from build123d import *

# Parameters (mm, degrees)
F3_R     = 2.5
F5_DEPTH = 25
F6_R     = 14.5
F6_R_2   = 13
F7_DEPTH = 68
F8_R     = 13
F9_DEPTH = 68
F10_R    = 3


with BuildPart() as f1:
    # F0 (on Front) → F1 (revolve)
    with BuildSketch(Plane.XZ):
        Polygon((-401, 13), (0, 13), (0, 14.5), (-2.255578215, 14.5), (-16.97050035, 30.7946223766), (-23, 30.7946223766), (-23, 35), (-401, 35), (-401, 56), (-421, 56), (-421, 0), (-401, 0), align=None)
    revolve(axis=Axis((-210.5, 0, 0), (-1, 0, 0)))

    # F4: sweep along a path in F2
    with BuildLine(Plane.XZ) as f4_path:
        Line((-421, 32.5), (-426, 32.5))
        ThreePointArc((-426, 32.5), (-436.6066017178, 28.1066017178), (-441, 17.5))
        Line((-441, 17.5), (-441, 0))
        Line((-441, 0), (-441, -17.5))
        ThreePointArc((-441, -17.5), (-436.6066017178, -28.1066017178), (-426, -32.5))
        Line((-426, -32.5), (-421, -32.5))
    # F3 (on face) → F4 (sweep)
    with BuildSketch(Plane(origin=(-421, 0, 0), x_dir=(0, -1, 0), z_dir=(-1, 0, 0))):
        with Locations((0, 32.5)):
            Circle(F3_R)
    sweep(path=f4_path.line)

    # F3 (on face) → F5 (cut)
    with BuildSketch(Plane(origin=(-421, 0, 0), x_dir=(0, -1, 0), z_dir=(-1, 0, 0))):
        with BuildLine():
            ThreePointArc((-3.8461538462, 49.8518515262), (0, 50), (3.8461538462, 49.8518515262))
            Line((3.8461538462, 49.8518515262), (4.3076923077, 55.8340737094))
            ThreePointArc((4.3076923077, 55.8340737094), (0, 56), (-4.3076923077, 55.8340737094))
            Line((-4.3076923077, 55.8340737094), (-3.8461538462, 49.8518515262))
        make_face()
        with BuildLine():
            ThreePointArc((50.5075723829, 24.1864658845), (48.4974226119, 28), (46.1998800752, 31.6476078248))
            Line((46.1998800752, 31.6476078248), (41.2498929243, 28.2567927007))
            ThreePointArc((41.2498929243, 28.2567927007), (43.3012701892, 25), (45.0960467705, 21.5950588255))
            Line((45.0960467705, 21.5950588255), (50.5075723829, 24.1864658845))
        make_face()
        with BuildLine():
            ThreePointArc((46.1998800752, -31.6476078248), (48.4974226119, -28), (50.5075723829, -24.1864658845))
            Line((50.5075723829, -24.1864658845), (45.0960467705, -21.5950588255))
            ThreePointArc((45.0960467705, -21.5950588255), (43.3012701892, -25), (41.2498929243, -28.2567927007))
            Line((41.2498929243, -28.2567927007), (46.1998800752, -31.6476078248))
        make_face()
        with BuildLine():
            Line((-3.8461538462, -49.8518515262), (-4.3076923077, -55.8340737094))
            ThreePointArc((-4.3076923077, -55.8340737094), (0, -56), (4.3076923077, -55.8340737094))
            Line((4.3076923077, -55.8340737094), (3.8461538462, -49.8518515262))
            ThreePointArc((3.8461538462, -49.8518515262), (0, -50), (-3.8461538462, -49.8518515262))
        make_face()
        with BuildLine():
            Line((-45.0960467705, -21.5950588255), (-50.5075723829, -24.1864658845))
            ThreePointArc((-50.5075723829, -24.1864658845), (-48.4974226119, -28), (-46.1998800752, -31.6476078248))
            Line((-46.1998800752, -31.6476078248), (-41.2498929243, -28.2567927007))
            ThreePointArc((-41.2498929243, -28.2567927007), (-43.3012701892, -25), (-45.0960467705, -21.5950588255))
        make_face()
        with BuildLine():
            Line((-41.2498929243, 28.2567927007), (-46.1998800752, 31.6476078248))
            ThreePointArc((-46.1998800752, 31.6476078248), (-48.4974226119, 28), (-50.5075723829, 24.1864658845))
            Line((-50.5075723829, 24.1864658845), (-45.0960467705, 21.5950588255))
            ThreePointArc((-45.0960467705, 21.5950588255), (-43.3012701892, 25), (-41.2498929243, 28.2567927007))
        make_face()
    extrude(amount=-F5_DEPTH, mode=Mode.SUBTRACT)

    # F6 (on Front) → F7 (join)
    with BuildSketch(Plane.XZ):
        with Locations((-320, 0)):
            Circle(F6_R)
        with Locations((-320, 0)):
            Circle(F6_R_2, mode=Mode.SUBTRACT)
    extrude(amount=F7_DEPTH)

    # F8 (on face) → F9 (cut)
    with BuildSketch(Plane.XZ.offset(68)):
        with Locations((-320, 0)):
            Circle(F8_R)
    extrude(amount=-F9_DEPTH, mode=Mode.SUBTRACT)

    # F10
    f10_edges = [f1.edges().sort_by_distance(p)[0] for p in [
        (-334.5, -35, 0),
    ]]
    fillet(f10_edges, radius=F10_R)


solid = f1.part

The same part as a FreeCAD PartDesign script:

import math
import FreeCAD as App
import Part
import Sketcher
from FreeCAD import Vector
Q = App.Units.Quantity


def edges_at(feature, points):
    """Names of the edges that pass closest to the given points."""
    edges = feature.Shape.Edges
    near = lambda p: min(range(len(edges)), key=lambda i: edges[i].distToShape(Part.Vertex(*p))[0])
    return sorted({f"Edge{near(p) + 1}" for p in points})


def add_polygon(sketch, points):
    """Adds a closed chain of lines whose ends are joined by coincident constraints."""
    first, n = sketch.GeometryCount, len(points)
    for a, b in zip(points, points[1:] + points[:1]):
        sketch.addGeometry(Part.LineSegment(App.Vector(*a, 0), App.Vector(*b, 0)), False)
    for i in range(n):
        sketch.addConstraint(Sketcher.Constraint("Coincident", first + i, 2, first + (i + 1) % n, 1))

doc = App.newDocument("Part")
body = doc.addObject("PartDesign::Body", "Body")

# Sketch on XZ plane
sketch1 = doc.addObject("Sketcher::SketchObject", "Sketch")
body.addObject(sketch1)
sketch1.AttachmentSupport = (doc.XZ_Plane, [""])
sketch1.MapMode = "FlatFace"
add_polygon(sketch1, [(-401, 13), (0, 13), (0, 14.5), (-2.255578, 14.5), (-16.9705, 30.794622), (-23, 30.794622), (-23, 35), (-401, 35), (-401, 56), (-421, 56), (-421, 0), (-401, 0)])  # lines 0-11
sketch1.addConstraint([
    Sketcher.Constraint("Horizontal", 0),
    Sketcher.Constraint("Vertical", 1),
    Sketcher.Constraint("Horizontal", 2),
    Sketcher.Constraint("Horizontal", 4),
    Sketcher.Constraint("Vertical", 5),
    Sketcher.Constraint("Horizontal", 6),
    Sketcher.Constraint("Vertical", 7),
    Sketcher.Constraint("Horizontal", 8),
    Sketcher.Constraint("Vertical", 9),
    Sketcher.Constraint("Horizontal", 10),
    Sketcher.Constraint("Vertical", 11),
    Sketcher.Constraint("PointOnObject", 0, 2, -2),
    Sketcher.Constraint("PointOnObject", 9, 2, -1),
    Sketcher.Constraint("Vertical", 7, 2, 10, 2),
    Sketcher.Constraint("DistanceX", 0, 1, 0, 2, Q("401 mm")),
    Sketcher.Constraint("DistanceX", 6, 2, 6, 1, Q("378 mm")),
    Sketcher.Constraint("DistanceX", 8, 2, 8, 1, Q("20 mm")),
    Sketcher.Constraint("DistanceY", 7, 1, 7, 2, Q("21 mm")),
    Sketcher.Constraint("DistanceY", 9, 2, 9, 1, Q("56 mm")),
    Sketcher.Constraint("DistanceY", 11, 1, 11, 2, Q("13 mm")),
    Sketcher.Constraint("DistanceY", 1, 1, 1, 2, Q("1.5 mm")),
    Sketcher.Constraint("DistanceX", 4, 2, 4, 1, Q("6.0295 mm")),
    Sketcher.Constraint("DistanceX", 2, 2, 2, 1, Q("2.255578 mm")),
    Sketcher.Constraint("DistanceY", 5, 1, 5, 2, Q("4.205378 mm")),
])
revolution = doc.addObject("PartDesign::Revolution", "Revolution")
body.addObject(revolution)
revolution.Profile = sketch1
revolution.ReferenceAxis = (sketch1, ["H_Axis"])
revolution.Angle = 360

# Sketch on YZ plane
sketch2 = doc.addObject("Sketcher::SketchObject", "Sketch001")
body.addObject(sketch2)
sketch2.AttachmentSupport = (doc.YZ_Plane, [""])
sketch2.MapMode = "FlatFace"
sketch2.AttachmentOffset = App.Placement(Vector(0, 0, -421), App.Rotation())
sketch2.addGeometry(Part.Circle(Vector(0, 32.5, 0), Vector(0, 0, 1), 2.5), False)
sketch2.addConstraint([
    Sketcher.Constraint("PointOnObject", 0, 3, -2),
    Sketcher.Constraint("Diameter", 0, Q("5 mm")),
    Sketcher.Constraint("DistanceY", -1, 1, 0, 3, Q("32.5 mm")),
])

# Sketch on XZ plane
sketch3 = doc.addObject("Sketcher::SketchObject", "Sketch002")
body.addObject(sketch3)
sketch3.AttachmentSupport = (doc.XZ_Plane, [""])
sketch3.MapMode = "FlatFace"
sketch3.addGeometry([
    Part.LineSegment(Vector(-421, 32.5, 0), Vector(-426, 32.5, 0)),  # 0
    Part.ArcOfCircle(Part.Circle(Vector(-426, 17.5, 0), Vector(0, 0, 1), 15), math.radians(90), math.radians(180)),  # 1
    Part.LineSegment(Vector(-441, 17.5, 0), Vector(-441, -17.5, 0)),  # 2
    Part.ArcOfCircle(Part.Circle(Vector(-426, -17.5, 0), Vector(0, 0, 1), 15), math.radians(180), math.radians(270)),  # 3
    Part.LineSegment(Vector(-426, -32.5, 0), Vector(-421, -32.5, 0)),  # 4
], False)
sketch3.addConstraint([
    Sketcher.Constraint("Tangent", 0, 2, 1, 1),
    Sketcher.Constraint("Tangent", 1, 2, 2, 1),
    Sketcher.Constraint("Tangent", 2, 2, 3, 1),
    Sketcher.Constraint("Tangent", 3, 2, 4, 1),
    Sketcher.Constraint("Horizontal", 0),
    Sketcher.Constraint("Vertical", 2),
    Sketcher.Constraint("Horizontal", 4),
    Sketcher.Constraint("Equal", 1, 3),
    Sketcher.Constraint("Symmetric", 0, 1, 4, 2, -1),
    Sketcher.Constraint("Radius", 1, Q("15 mm")),
    Sketcher.Constraint("DistanceX", 0, 2, 0, 1, Q("5 mm")),
    Sketcher.Constraint("DistanceY", 2, 2, 2, 1, Q("35 mm")),
    Sketcher.Constraint("DistanceX", 1, 3, -1, 1, Q("426 mm")),
])
doc.recompute()

additivepipe = doc.addObject("PartDesign::AdditivePipe", "AdditivePipe")
body.addObject(additivepipe)
additivepipe.Profile = sketch2
additivepipe.Spine = (sketch3, ["Edge1", "Edge2", "Edge3", "Edge4", "Edge5"])

# Sketch on YZ plane
sketch4 = doc.addObject("Sketcher::SketchObject", "Sketch003")
body.addObject(sketch4)
sketch4.AttachmentSupport = (doc.YZ_Plane, [""])
sketch4.MapMode = "FlatFace"
sketch4.AttachmentOffset = App.Placement(Vector(0, 0, -421), App.Rotation())
sketch4.addGeometry([
    Part.ArcOfCircle(Part.Circle(Vector(0, 0, 0), Vector(0, 0, 1), 50), math.radians(85.588274), math.radians(94.411726)),  # 0
    Part.LineSegment(Vector(-3.846154, 49.851852, 0), Vector(-4.307692, 55.834074, 0)),  # 1
    Part.ArcOfCircle(Part.Circle(Vector(0, 0, 0), Vector(0, 0, 1), 56), math.radians(85.588274), math.radians(94.411726)),  # 2
    Part.LineSegment(Vector(4.307692, 55.834074, 0), Vector(3.846154, 49.851852, 0)),  # 3
    Part.ArcOfCircle(Part.Circle(Vector(0, 0, 0), Vector(0, 0, 1), 56), math.radians(145.588274), math.radians(154.411726)),  # 4
    Part.LineSegment(Vector(-46.19988, 31.647608, 0), Vector(-41.249893, 28.256793, 0)),  # 5
    Part.ArcOfCircle(Part.Circle(Vector(0, 0, 0), Vector(0, 0, 1), 50), math.radians(145.588274), math.radians(154.411726)),  # 6
    Part.LineSegment(Vector(-45.096047, 21.595059, 0), Vector(-50.507572, 24.186466, 0)),  # 7
    Part.ArcOfCircle(Part.Circle(Vector(0, 0, 0), Vector(0, 0, 1), 56), math.radians(-154.411726), math.radians(-145.588274)),  # 8
    Part.LineSegment(Vector(-50.507572, -24.186466, 0), Vector(-45.096047, -21.595059, 0)),  # 9
    Part.ArcOfCircle(Part.Circle(Vector(0, 0, 0), Vector(0, 0, 1), 50), math.radians(-154.411726), math.radians(-145.588274)),  # 10
    Part.LineSegment(Vector(-41.249893, -28.256793, 0), Vector(-46.19988, -31.647608, 0)),  # 11
    Part.LineSegment(Vector(3.846154, -49.851852, 0), Vector(4.307692, -55.834074, 0)),  # 12
    Part.ArcOfCircle(Part.Circle(Vector(0, 0, 0), Vector(0, 0, 1), 56), math.radians(-94.411726), math.radians(-85.588274)),  # 13
    Part.LineSegment(Vector(-4.307692, -55.834074, 0), Vector(-3.846154, -49.851852, 0)),  # 14
    Part.ArcOfCircle(Part.Circle(Vector(0, 0, 0), Vector(0, 0, 1), 50), math.radians(-94.411726), math.radians(-85.588274)),  # 15
    Part.LineSegment(Vector(45.096047, -21.595059, 0), Vector(50.507572, -24.186466, 0)),  # 16
    Part.ArcOfCircle(Part.Circle(Vector(0, 0, 0), Vector(0, 0, 1), 56), math.radians(-34.411726), math.radians(-25.588274)),  # 17
    Part.LineSegment(Vector(46.19988, -31.647608, 0), Vector(41.249893, -28.256793, 0)),  # 18
    Part.ArcOfCircle(Part.Circle(Vector(0, 0, 0), Vector(0, 0, 1), 50), math.radians(-34.411726), math.radians(-25.588274)),  # 19
    Part.LineSegment(Vector(41.249893, 28.256793, 0), Vector(46.19988, 31.647608, 0)),  # 20
    Part.ArcOfCircle(Part.Circle(Vector(0, 0, 0), Vector(0, 0, 1), 56), math.radians(25.588274), math.radians(34.411726)),  # 21
    Part.LineSegment(Vector(50.507572, 24.186466, 0), Vector(45.096047, 21.595059, 0)),  # 22
    Part.ArcOfCircle(Part.Circle(Vector(0, 0, 0), Vector(0, 0, 1), 50), math.radians(25.588274), math.radians(34.411726)),  # 23
], False)
sketch4.addConstraint([
    Sketcher.Constraint("Coincident", 0, 2, 1, 1),
    Sketcher.Constraint("Coincident", 1, 2, 2, 2),
    Sketcher.Constraint("Coincident", 2, 1, 3, 1),
    Sketcher.Constraint("Coincident", 3, 2, 0, 1),
    Sketcher.Constraint("Coincident", 4, 1, 5, 1),
    Sketcher.Constraint("Coincident", 5, 2, 6, 1),
    Sketcher.Constraint("Coincident", 6, 2, 7, 1),
    Sketcher.Constraint("Coincident", 7, 2, 4, 2),
    Sketcher.Constraint("Coincident", 8, 1, 9, 1),
    Sketcher.Constraint("Coincident", 9, 2, 10, 1),
    Sketcher.Constraint("Coincident", 10, 2, 11, 1),
    Sketcher.Constraint("Coincident", 11, 2, 8, 2),
    Sketcher.Constraint("Coincident", 12, 2, 13, 2),
    Sketcher.Constraint("Coincident", 13, 1, 14, 1),
    Sketcher.Constraint("Coincident", 14, 2, 15, 1),
    Sketcher.Constraint("Coincident", 15, 2, 12, 1),
    Sketcher.Constraint("Coincident", 16, 2, 17, 2),
    Sketcher.Constraint("Coincident", 17, 1, 18, 1),
    Sketcher.Constraint("Coincident", 18, 2, 19, 1),
    Sketcher.Constraint("Coincident", 19, 2, 16, 1),
    Sketcher.Constraint("Coincident", 20, 2, 21, 2),
    Sketcher.Constraint("Coincident", 21, 1, 22, 1),
    Sketcher.Constraint("Coincident", 22, 2, 23, 1),
    Sketcher.Constraint("Coincident", 23, 2, 20, 1),
    Sketcher.Constraint("Coincident", 0, 3, -1, 1),
    Sketcher.Constraint("Coincident", 2, 3, -1, 1),
    Sketcher.Constraint("Coincident", 4, 3, -1, 1),
    Sketcher.Constraint("Coincident", 6, 3, -1, 1),
    Sketcher.Constraint("Coincident", 8, 3, -1, 1),
    Sketcher.Constraint("Coincident", 10, 3, -1, 1),
    Sketcher.Constraint("Coincident", 13, 3, -1, 1),
    Sketcher.Constraint("Coincident", 15, 3, -1, 1),
    Sketcher.Constraint("Coincident", 17, 3, -1, 1),
    Sketcher.Constraint("Coincident", 19, 3, -1, 1),
    Sketcher.Constraint("Coincident", 21, 3, -1, 1),
    Sketcher.Constraint("Coincident", 23, 3, -1, 1),
    Sketcher.Constraint("Equal", 2, 4),
    Sketcher.Constraint("Equal", 0, 6),
    Sketcher.Constraint("Equal", 4, 8),
    Sketcher.Constraint("Equal", 6, 10),
    Sketcher.Constraint("Equal", 8, 13),
    Sketcher.Constraint("Equal", 10, 15),
    Sketcher.Constraint("Equal", 13, 17),
    Sketcher.Constraint("Equal", 15, 19),
    Sketcher.Constraint("Equal", 17, 21),
    Sketcher.Constraint("Equal", 19, 23),
    Sketcher.Constraint("Parallel", 1, 12),
    Sketcher.Constraint("Parallel", 3, 14),
    Sketcher.Constraint("Parallel", 7, 16),
    Sketcher.Constraint("Parallel", 5, 18),
    Sketcher.Constraint("Parallel", 11, 20),
    Sketcher.Constraint("Parallel", 9, 22),
    Sketcher.Constraint("Horizontal", 1, 2, 2, 1),
    Sketcher.Constraint("Horizontal", 0, 2, 3, 2),
    Sketcher.Constraint("Horizontal", 12, 2, 13, 1),
    Sketcher.Constraint("Horizontal", 8, 1, 16, 2),
    Sketcher.Constraint("Horizontal", 11, 2, 17, 1),
    Sketcher.Constraint("Horizontal", 10, 2, 18, 2),
    Sketcher.Constraint("Horizontal", 9, 2, 19, 2),
    Sketcher.Constraint("Horizontal", 4, 1, 20, 2),
    Sketcher.Constraint("Horizontal", 7, 2, 21, 1),
    Sketcher.Constraint("Vertical", 7, 2, 8, 1),
    Sketcher.Constraint("Vertical", 5, 2, 10, 2),
    Sketcher.Constraint("Vertical", 2, 1, 12, 2),
    Sketcher.Constraint("Radius", 0, Q("50 mm")),
    Sketcher.Constraint("Radius", 2, Q("56 mm")),
    Sketcher.Constraint("DistanceX", 5, 2, 1, 2, Q("36.942201 mm")),
    Sketcher.Constraint("DistanceY", -1, 1, 0, 2, Q("49.851852 mm")),
    Sketcher.Constraint("DistanceX", 4, 1, -1, 1, Q("46.19988 mm")),
    Sketcher.Constraint("DistanceY", -1, 1, 6, 2, Q("21.595059 mm")),
    Sketcher.Constraint("DistanceX", 1, 2, 0, 2, Q("0.461538 mm")),
    Sketcher.Constraint("DistanceY", 7, 2, 4, 1, Q("7.461142 mm")),
])
pocket1 = doc.addObject("PartDesign::Pocket", "Pocket")
body.addObject(pocket1)
pocket1.Profile = sketch4
pocket1.Length = 25
pocket1.Reversed = True

# Sketch on XZ plane
sketch5 = doc.addObject("Sketcher::SketchObject", "Sketch004")
body.addObject(sketch5)
sketch5.AttachmentSupport = (doc.XZ_Plane, [""])
sketch5.MapMode = "FlatFace"
sketch5.addGeometry([
    Part.Circle(Vector(-320, 0, 0), Vector(0, 0, 1), 14.5),
    Part.Circle(Vector(-320, 0, 0), Vector(0, 0, 1), 13),
], False)
sketch5.addConstraint([
    Sketcher.Constraint("Coincident", 1, 3, 0, 3),
    Sketcher.Constraint("PointOnObject", 0, 3, -1),
    Sketcher.Constraint("Diameter", 0, Q("29 mm")),
    Sketcher.Constraint("Diameter", 1, Q("26 mm")),
    Sketcher.Constraint("DistanceX", 0, 3, -1, 1, Q("320 mm")),
])
pad1 = doc.addObject("PartDesign::Pad", "Pad")
body.addObject(pad1)
pad1.Profile = sketch5
pad1.Length = 68

# Sketch on XZ plane
sketch6 = doc.addObject("Sketcher::SketchObject", "Sketch005")
body.addObject(sketch6)
sketch6.AttachmentSupport = (doc.XZ_Plane, [""])
sketch6.MapMode = "FlatFace"
sketch6.AttachmentOffset = App.Placement(Vector(0, 0, 68), App.Rotation())
sketch6.addGeometry(Part.Circle(Vector(-320, 0, 0), Vector(0, 0, 1), 13), False)
sketch6.addConstraint([
    Sketcher.Constraint("PointOnObject", 0, 3, -1),
    Sketcher.Constraint("Diameter", 0, Q("26 mm")),
    Sketcher.Constraint("DistanceX", 0, 3, -1, 1, Q("320 mm")),
])
pocket2 = doc.addObject("PartDesign::Pocket", "Pocket001")
body.addObject(pocket2)
pocket2.Profile = sketch6
pocket2.Length = 68
doc.recompute()

fillet = doc.addObject("PartDesign::Fillet", "Fillet")
body.addObject(fillet)
fillet.Base = (pocket2, edges_at(pocket2, [(-334.5, -35, 0)]))
fillet.Radius = 3

doc.recompute()
